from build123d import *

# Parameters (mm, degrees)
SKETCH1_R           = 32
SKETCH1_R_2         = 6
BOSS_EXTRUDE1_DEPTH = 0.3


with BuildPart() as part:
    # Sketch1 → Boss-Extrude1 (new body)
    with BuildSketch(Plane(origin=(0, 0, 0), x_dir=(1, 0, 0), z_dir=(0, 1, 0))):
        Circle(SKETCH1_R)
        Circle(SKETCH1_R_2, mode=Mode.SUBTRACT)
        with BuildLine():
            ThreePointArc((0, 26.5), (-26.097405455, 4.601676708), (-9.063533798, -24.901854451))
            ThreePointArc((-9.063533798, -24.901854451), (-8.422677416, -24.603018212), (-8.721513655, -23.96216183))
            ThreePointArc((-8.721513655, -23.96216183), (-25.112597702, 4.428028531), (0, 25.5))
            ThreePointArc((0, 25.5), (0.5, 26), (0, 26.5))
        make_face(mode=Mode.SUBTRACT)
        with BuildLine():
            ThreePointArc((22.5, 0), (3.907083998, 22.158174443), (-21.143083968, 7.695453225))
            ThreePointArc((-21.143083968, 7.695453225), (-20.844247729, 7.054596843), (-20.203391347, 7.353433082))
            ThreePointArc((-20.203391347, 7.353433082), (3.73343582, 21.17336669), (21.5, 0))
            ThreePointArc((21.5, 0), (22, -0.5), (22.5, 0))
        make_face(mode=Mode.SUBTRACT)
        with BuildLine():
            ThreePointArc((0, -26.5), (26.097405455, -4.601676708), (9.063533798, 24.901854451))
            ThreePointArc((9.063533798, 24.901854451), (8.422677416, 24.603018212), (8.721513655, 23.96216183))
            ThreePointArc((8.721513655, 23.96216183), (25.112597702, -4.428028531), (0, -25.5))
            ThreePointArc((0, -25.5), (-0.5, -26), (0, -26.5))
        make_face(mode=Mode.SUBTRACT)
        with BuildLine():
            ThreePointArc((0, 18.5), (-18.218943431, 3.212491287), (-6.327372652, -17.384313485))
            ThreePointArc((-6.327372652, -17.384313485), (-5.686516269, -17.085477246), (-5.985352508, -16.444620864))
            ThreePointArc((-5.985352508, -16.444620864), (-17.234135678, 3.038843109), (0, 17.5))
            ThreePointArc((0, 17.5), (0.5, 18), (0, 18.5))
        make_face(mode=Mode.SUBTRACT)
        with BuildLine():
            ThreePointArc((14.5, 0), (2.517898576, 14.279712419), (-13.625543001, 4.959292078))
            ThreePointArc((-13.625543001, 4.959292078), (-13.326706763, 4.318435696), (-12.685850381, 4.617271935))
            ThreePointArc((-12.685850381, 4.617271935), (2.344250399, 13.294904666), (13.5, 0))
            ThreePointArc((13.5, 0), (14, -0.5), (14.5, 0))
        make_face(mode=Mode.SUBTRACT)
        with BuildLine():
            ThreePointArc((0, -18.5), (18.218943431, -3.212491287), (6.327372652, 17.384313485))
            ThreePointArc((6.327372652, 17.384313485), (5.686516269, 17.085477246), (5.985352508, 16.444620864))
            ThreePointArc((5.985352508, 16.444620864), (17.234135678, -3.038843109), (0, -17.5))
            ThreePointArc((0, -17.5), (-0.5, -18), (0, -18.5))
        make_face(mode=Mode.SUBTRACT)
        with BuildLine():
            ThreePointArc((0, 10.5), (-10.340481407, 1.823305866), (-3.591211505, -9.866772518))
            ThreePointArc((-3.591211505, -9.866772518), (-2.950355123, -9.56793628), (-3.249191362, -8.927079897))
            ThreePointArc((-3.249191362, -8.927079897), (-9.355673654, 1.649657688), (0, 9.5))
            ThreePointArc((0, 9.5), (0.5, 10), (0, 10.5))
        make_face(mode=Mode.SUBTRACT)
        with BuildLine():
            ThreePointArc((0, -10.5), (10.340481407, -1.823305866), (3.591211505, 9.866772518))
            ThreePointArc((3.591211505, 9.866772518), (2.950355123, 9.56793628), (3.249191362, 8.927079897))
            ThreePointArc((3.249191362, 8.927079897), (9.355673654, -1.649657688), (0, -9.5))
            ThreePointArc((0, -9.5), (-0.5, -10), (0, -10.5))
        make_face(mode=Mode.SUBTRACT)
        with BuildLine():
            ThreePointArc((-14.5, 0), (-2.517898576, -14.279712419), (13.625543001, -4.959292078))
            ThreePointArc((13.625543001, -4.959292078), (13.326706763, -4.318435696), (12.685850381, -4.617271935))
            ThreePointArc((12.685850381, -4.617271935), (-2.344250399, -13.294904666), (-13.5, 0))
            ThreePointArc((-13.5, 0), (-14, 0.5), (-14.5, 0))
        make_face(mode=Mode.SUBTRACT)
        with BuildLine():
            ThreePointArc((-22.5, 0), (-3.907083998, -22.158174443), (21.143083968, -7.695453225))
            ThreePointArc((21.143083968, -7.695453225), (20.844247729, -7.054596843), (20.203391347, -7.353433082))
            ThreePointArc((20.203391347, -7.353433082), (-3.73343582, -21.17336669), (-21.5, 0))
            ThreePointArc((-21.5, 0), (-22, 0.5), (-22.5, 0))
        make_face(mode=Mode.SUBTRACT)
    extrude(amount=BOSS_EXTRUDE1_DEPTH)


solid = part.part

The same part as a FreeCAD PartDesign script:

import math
import FreeCAD as App
import Part
import Sketcher

doc = App.newDocument("Part")
body = doc.addObject("PartDesign::Body", "Body")

# Sketch on XZ plane
sketch1 = doc.addObject("Sketcher::SketchObject", "Sketch")
body.addObject(sketch1)
sketch1.AttachmentSupport = (doc.XZ_Plane, [""])
sketch1.MapMode = "FlatFace"
sketch1.addGeometry(Part.Circle(App.Vector(0, 0, 0), App.Vector(0, 0, 1), 32), False)
sketch1.addGeometry(Part.ArcOfCircle(Part.Circle(App.Vector(0, 0, 0), App.Vector(0, 0, 1), 22.5), math.radians(20), math.radians(180)), False)
sketch1.addGeometry(Part.ArcOfCircle(Part.Circle(App.Vector(-22, 0, 0), App.Vector(0, 0, 1), 0.5), math.radians(180), math.radians(360)), False)
sketch1.addGeometry(Part.ArcOfCircle(Part.Circle(App.Vector(0, 0, 0), App.Vector(0, 0, 1), 21.5), math.radians(20), math.radians(180)), False)
sketch1.addGeometry(Part.ArcOfCircle(Part.Circle(App.Vector(20.7, 7.5, 0), App.Vector(0, 0, 1), 0.5), math.radians(-160), math.radians(20)), False)
sketch1.addGeometry(Part.ArcOfCircle(Part.Circle(App.Vector(0, 0, 0), App.Vector(0, 0, 1), 14.5), math.radians(20), math.radians(180)), False)
sketch1.addGeometry(Part.ArcOfCircle(Part.Circle(App.Vector(-14, 0, 0), App.Vector(0, 0, 1), 0.5), math.radians(180), math.radians(360)), False)
sketch1.addGeometry(Part.ArcOfCircle(Part.Circle(App.Vector(0, 0, 0), App.Vector(0, 0, 1), 13.5), math.radians(20), math.radians(180)), False)
sketch1.addGeometry(Part.ArcOfCircle(Part.Circle(App.Vector(13.2, 4.8, 0), App.Vector(0, 0, 1), 0.5), math.radians(-160), math.radians(20)), False)
sketch1.addGeometry(Part.ArcOfCircle(Part.Circle(App.Vector(0, 0, 0), App.Vector(0, 0, 1), 10.5), math.radians(-70), math.radians(90)), False)
sketch1.addGeometry(Part.ArcOfCircle(Part.Circle(App.Vector(0, 10, 0), App.Vector(0, 0, 1), 0.5), math.radians(90), math.radians(270)), False)
sketch1.addGeometry(Part.ArcOfCircle(Part.Circle(App.Vector(0, 0, 0), App.Vector(0, 0, 1), 9.5), math.radians(-70), math.radians(90)), False)
sketch1.addGeometry(Part.ArcOfCircle(Part.Circle(App.Vector(3.4, -9.4, 0), App.Vector(0, 0, 1), 0.5), math.radians(110), math.radians(290)), False)
sketch1.addGeometry(Part.ArcOfCircle(Part.Circle(App.Vector(0, 0, 0), App.Vector(0, 0, 1), 18.5), math.radians(-70), math.radians(90)), False)
sketch1.addGeometry(Part.ArcOfCircle(Part.Circle(App.Vector(0, 18, 0), App.Vector(0, 0, 1), 0.5), math.radians(90), math.radians(270)), False)
sketch1.addGeometry(Part.ArcOfCircle(Part.Circle(App.Vector(0, 0, 0), App.Vector(0, 0, 1), 17.5), math.radians(-70), math.radians(90)), False)
sketch1.addGeometry(Part.ArcOfCircle(Part.Circle(App.Vector(6.2, -16.9, 0), App.Vector(0, 0, 1), 0.5), math.radians(110), math.radians(290)), False)
sketch1.addGeometry(Part.ArcOfCircle(Part.Circle(App.Vector(0, 0, 0), App.Vector(0, 0, 1), 26.5), math.radians(-70), math.radians(90)), False)
sketch1.addGeometry(Part.ArcOfCircle(Part.Circle(App.Vector(0, 26, 0), App.Vector(0, 0, 1), 0.5), math.radians(90), math.radians(270)), False)
sketch1.addGeometry(Part.ArcOfCircle(Part.Circle(App.Vector(0, 0, 0), App.Vector(0, 0, 1), 25.5), math.radians(-70), math.radians(90)), False)
sketch1.addGeometry(Part.ArcOfCircle(Part.Circle(App.Vector(8.9, -24.4, 0), App.Vector(0, 0, 1), 0.5), math.radians(110), math.radians(290)), False)
sketch1.addGeometry(Part.ArcOfCircle(Part.Circle(App.Vector(0, 0, 0), App.Vector(0, 0, 1), 26.5), math.radians(110), math.radians(270)), False)
sketch1.addGeometry(Part.ArcOfCircle(Part.Circle(App.Vector(0, -26, 0), App.Vector(0, 0, 1), 0.5), math.radians(-90), math.radians(90)), False)
sketch1.addGeometry(Part.ArcOfCircle(Part.Circle(App.Vector(0, 0, 0), App.Vector(0, 0, 1), 25.5), math.radians(110), math.radians(270)), False)
sketch1.addGeometry(Part.ArcOfCircle(Part.Circle(App.Vector(-8.9, 24.4, 0), App.Vector(0, 0, 1), 0.5), math.radians(-70), math.radians(110)), False)
sketch1.addGeometry(Part.ArcOfCircle(Part.Circle(App.Vector(0, 0, 0), App.Vector(0, 0, 1), 18.5), math.radians(110), math.radians(270)), False)
sketch1.addGeometry(Part.ArcOfCircle(Part.Circle(App.Vector(0, -18, 0), App.Vector(0, 0, 1), 0.5), math.radians(-90), math.radians(90)), False)
sketch1.addGeometry(Part.ArcOfCircle(Part.Circle(App.Vector(0, 0, 0), App.Vector(0, 0, 1), 17.5), math.radians(110), math.radians(270)), False)
sketch1.addGeometry(Part.ArcOfCircle(Part.Circle(App.Vector(-6.2, 16.9, 0), App.Vector(0, 0, 1), 0.5), math.radians(-70), math.radians(110)), False)
sketch1.addGeometry(Part.ArcOfCircle(Part.Circle(App.Vector(0, 0, 0), App.Vector(0, 0, 1), 10.5), math.radians(110), math.radians(270)), False)
sketch1.addGeometry(Part.ArcOfCircle(Part.Circle(App.Vector(0, -10, 0), App.Vector(0, 0, 1), 0.5), math.radians(-90), math.radians(90)), False)
sketch1.addGeometry(Part.ArcOfCircle(Part.Circle(App.Vector(0, 0, 0), App.Vector(0, 0, 1), 9.5), math.radians(110), math.radians(270)), False)
sketch1.addGeometry(Part.ArcOfCircle(Part.Circle(App.Vector(-3.4, 9.4, 0), App.Vector(0, 0, 1), 0.5), math.radians(-70), math.radians(110)), False)
sketch1.addGeometry(Part.Circle(App.Vector(0, 0, 0), App.Vector(0, 0, 1), 6), False)
sketch1.addGeometry(Part.ArcOfCircle(Part.Circle(App.Vector(0, 0, 0), App.Vector(0, 0, 1), 14.5), math.radians(-160), math.radians(0)), False)
sketch1.addGeometry(Part.ArcOfCircle(Part.Circle(App.Vector(14, 0, 0), App.Vector(0, 0, 1), 0.5), math.radians(0), math.radians(180)), False)
sketch1.addGeometry(Part.ArcOfCircle(Part.Circle(App.Vector(0, 0, 0), App.Vector(0, 0, 1), 13.5), math.radians(-160), math.radians(0)), False)
sketch1.addGeometry(Part.ArcOfCircle(Part.Circle(App.Vector(-13.2, -4.8, 0), App.Vector(0, 0, 1), 0.5), math.radians(20), math.radians(200)), False)
sketch1.addGeometry(Part.ArcOfCircle(Part.Circle(App.Vector(0, 0, 0), App.Vector(0, 0, 1), 22.5), math.radians(-160), math.radians(0)), False)
sketch1.addGeometry(Part.ArcOfCircle(Part.Circle(App.Vector(22, 0, 0), App.Vector(0, 0, 1), 0.5), math.radians(0), math.radians(180)), False)
sketch1.addGeometry(Part.ArcOfCircle(Part.Circle(App.Vector(0, 0, 0), App.Vector(0, 0, 1), 21.5), math.radians(-160), math.radians(0)), False)
sketch1.addGeometry(Part.ArcOfCircle(Part.Circle(App.Vector(-20.7, -7.5, 0), App.Vector(0, 0, 1), 0.5), math.radians(20), math.radians(200)), False)
sketch1.addConstraint(Sketcher.Constraint("Tangent", 1, 2, 2, 1))
sketch1.addConstraint(Sketcher.Constraint("Tangent", 2, 2, 3, 2))
sketch1.addConstraint(Sketcher.Constraint("Tangent", 3, 1, 4, 1))
sketch1.addConstraint(Sketcher.Constraint("Tangent", 4, 2, 1, 1))
sketch1.addConstraint(Sketcher.Constraint("Tangent", 5, 2, 6, 1))
sketch1.addConstraint(Sketcher.Constraint("Tangent", 6, 2, 7, 2))
sketch1.addConstraint(Sketcher.Constraint("Tangent", 7, 1, 8, 1))
sketch1.addConstraint(Sketcher.Constraint("Tangent", 8, 2, 5, 1))
sketch1.addConstraint(Sketcher.Constraint("Tangent", 9, 2, 10, 1))
sketch1.addConstraint(Sketcher.Constraint("Tangent", 10, 2, 11, 2))
sketch1.addConstraint(Sketcher.Constraint("Tangent", 11, 1, 12, 1))
sketch1.addConstraint(Sketcher.Constraint("Tangent", 12, 2, 9, 1))
sketch1.addConstraint(Sketcher.Constraint("Tangent", 13, 2, 14, 1))
sketch1.addConstraint(Sketcher.Constraint("Tangent", 14, 2, 15, 2))
sketch1.addConstraint(Sketcher.Constraint("Tangent", 15, 1, 16, 1))
sketch1.addConstraint(Sketcher.Constraint("Tangent", 16, 2, 13, 1))
sketch1.addConstraint(Sketcher.Constraint("Tangent", 17, 2, 18, 1))
sketch1.addConstraint(Sketcher.Constraint("Tangent", 18, 2, 19, 2))
sketch1.addConstraint(Sketcher.Constraint("Tangent", 19, 1, 20, 1))
sketch1.addConstraint(Sketcher.Constraint("Tangent", 20, 2, 17, 1))
sketch1.addConstraint(Sketcher.Constraint("Tangent", 21, 2, 22, 1))
sketch1.addConstraint(Sketcher.Constraint("Tangent", 22, 2, 23, 2))
sketch1.addConstraint(Sketcher.Constraint("Tangent", 23, 1, 24, 1))
sketch1.addConstraint(Sketcher.Constraint("Tangent", 24, 2, 21, 1))
sketch1.addConstraint(Sketcher.Constraint("Tangent", 25, 2, 26, 1))
sketch1.addConstraint(Sketcher.Constraint("Tangent", 26, 2, 27, 2))
sketch1.addConstraint(Sketcher.Constraint("Tangent", 27, 1, 28, 1))
sketch1.addConstraint(Sketcher.Constraint("Tangent", 28, 2, 25, 1))
sketch1.addConstraint(Sketcher.Constraint("Tangent", 29, 2, 30, 1))
sketch1.addConstraint(Sketcher.Constraint("Tangent", 30, 2, 31, 2))
sketch1.addConstraint(Sketcher.Constraint("Tangent", 31, 1, 32, 1))
sketch1.addConstraint(Sketcher.Constraint("Tangent", 32, 2, 29, 1))
sketch1.addConstraint(Sketcher.Constraint("Tangent", 34, 2, 35, 1))
sketch1.addConstraint(Sketcher.Constraint("Tangent", 35, 2, 36, 2))
sketch1.addConstraint(Sketcher.Constraint("Tangent", 36, 1, 37, 1))
sketch1.addConstraint(Sketcher.Constraint("Tangent", 37, 2, 34, 1))
sketch1.addConstraint(Sketcher.Constraint("Tangent", 38, 2, 39, 1))
sketch1.addConstraint(Sketcher.Constraint("Tangent", 39, 2, 40, 2))
sketch1.addConstraint(Sketcher.Constraint("Tangent", 40, 1, 41, 1))
sketch1.addConstraint(Sketcher.Constraint("Tangent", 41, 2, 38, 1))
sketch1.addConstraint(Sketcher.Constraint("Coincident", 0, 3, -1, 1))
sketch1.addConstraint(Sketcher.Constraint("Coincident", 1, 3, -1, 1))
sketch1.addConstraint(Sketcher.Constraint("Coincident", 3, 3, -1, 1))
sketch1.addConstraint(Sketcher.Constraint("Coincident", 5, 3, -1, 1))
sketch1.addConstraint(Sketcher.Constraint("Coincident", 7, 3, -1, 1))
sketch1.addConstraint(Sketcher.Constraint("Coincident", 9, 3, -1, 1))
sketch1.addConstraint(Sketcher.Constraint("Coincident", 11, 3, -1, 1))
sketch1.addConstraint(Sketcher.Constraint("Coincident", 13, 3, -1, 1))
sketch1.addConstraint(Sketcher.Constraint("Coincident", 15, 3, -1, 1))
sketch1.addConstraint(Sketcher.Constraint("Coincident", 17, 3, -1, 1))
sketch1.addConstraint(Sketcher.Constraint("Coincident", 19, 3, -1, 1))
sketch1.addConstraint(Sketcher.Constraint("Coincident", 21, 3, -1, 1))
sketch1.addConstraint(Sketcher.Constraint("Coincident", 23, 3, -1, 1))
sketch1.addConstraint(Sketcher.Constraint("Coincident", 25, 3, -1, 1))
sketch1.addConstraint(Sketcher.Constraint("Coincident", 27, 3, -1, 1))
sketch1.addConstraint(Sketcher.Constraint("Coincident", 29, 3, -1, 1))
sketch1.addConstraint(Sketcher.Constraint("Coincident", 31, 3, -1, 1))
sketch1.addConstraint(Sketcher.Constraint("Coincident", 33, 3, -1, 1))
sketch1.addConstraint(Sketcher.Constraint("Coincident", 34, 3, -1, 1))
sketch1.addConstraint(Sketcher.Constraint("Coincident", 36, 3, -1, 1))
sketch1.addConstraint(Sketcher.Constraint("Coincident", 38, 3, -1, 1))
sketch1.addConstraint(Sketcher.Constraint("Coincident", 40, 3, -1, 1))
sketch1.addConstraint(Sketcher.Constraint("Equal", 4, 6))
sketch1.addConstraint(Sketcher.Constraint("Equal", 8, 10))
sketch1.addConstraint(Sketcher.Constraint("Equal", 12, 14))
sketch1.addConstraint(Sketcher.Constraint("Equal", 16, 18))
sketch1.addConstraint(Sketcher.Constraint("Equal", 17, 21))
sketch1.addConstraint(Sketcher.Constraint("Equal", 20, 22))
sketch1.addConstraint(Sketcher.Constraint("Equal", 13, 25))
sketch1.addConstraint(Sketcher.Constraint("Equal", 24, 26))
sketch1.addConstraint(Sketcher.Constraint("Equal", 9, 29))
sketch1.addConstraint(Sketcher.Constraint("Equal", 28, 30))
sketch1.addConstraint(Sketcher.Constraint("Equal", 5, 34))
sketch1.addConstraint(Sketcher.Constraint("Equal", 32, 35))
sketch1.addConstraint(Sketcher.Constraint("Equal", 1, 38))
sketch1.addConstraint(Sketcher.Constraint("Equal", 37, 39))
sketch1.addConstraint(Sketcher.Constraint("PointOnObject", 2, 3, -1))
sketch1.addConstraint(Sketcher.Constraint("PointOnObject", 6, 3, -1))
sketch1.addConstraint(Sketcher.Constraint("PointOnObject", 10, 3, -2))
sketch1.addConstraint(Sketcher.Constraint("PointOnObject", 14, 3, -2))
sketch1.addConstraint(Sketcher.Constraint("PointOnObject", 18, 3, -2))
sketch1.addConstraint(Sketcher.Constraint("PointOnObject", 22, 3, -2))
sketch1.addConstraint(Sketcher.Constraint("PointOnObject", 26, 3, -2))
sketch1.addConstraint(Sketcher.Constraint("PointOnObject", 30, 3, -2))
sketch1.addConstraint(Sketcher.Constraint("PointOnObject", 35, 3, -1))
sketch1.addConstraint(Sketcher.Constraint("PointOnObject", 39, 3, -1))
sketch1.addConstraint(Sketcher.Constraint("Diameter", 0, 64.0))
sketch1.addConstraint(Sketcher.Constraint("Diameter", 33, 12.0))
sketch1.addConstraint(Sketcher.Constraint("Radius", 1, 22.5))
sketch1.addConstraint(Sketcher.Constraint("Radius", 2, 0.5))
sketch1.addConstraint(Sketcher.Constraint("Radius", 5, 14.5))
sketch1.addConstraint(Sketcher.Constraint("Radius", 9, 10.5))
sketch1.addConstraint(Sketcher.Constraint("Radius", 13, 18.5))
sketch1.addConstraint(Sketcher.Constraint("Radius", 17, 26.5))
sketch1.addConstraint(Sketcher.Constraint("DistanceX", -1, 1, 12, 3, 3.420201))
sketch1.addConstraint(Sketcher.Constraint("DistanceX", 32, 3, -1, 1, 3.420201))
sketch1.addConstraint(Sketcher.Constraint("DistanceY", 20, 3, -1, 1, 24.432008))
sketch1.addConstraint(Sketcher.Constraint("DistanceY", -1, 1, 24, 3, 24.432008))
sketch1.addConstraint(Sketcher.Constraint("DistanceX", -1, 1, 3, 1, 20.203391))
sketch1.addConstraint(Sketcher.Constraint("DistanceX", -1, 1, 7, 1, 12.68585))
sketch1.addConstraint(Sketcher.Constraint("DistanceY", 15, 1, -1, 1, 16.444621))
sketch1.addConstraint(Sketcher.Constraint("DistanceY", -1, 1, 27, 1, 16.444621))
sketch1.addConstraint(Sketcher.Constraint("DistanceX", 36, 1, -1, 1, 12.68585))
sketch1.addConstraint(Sketcher.Constraint("DistanceX", 40, 1, -1, 1, 20.203391))
pad1 = doc.addObject("PartDesign::Pad", "Pad")
body.addObject(pad1)
pad1.Profile = sketch1
pad1.Length = 0.3
pad1.Reversed = True

doc.recompute()
